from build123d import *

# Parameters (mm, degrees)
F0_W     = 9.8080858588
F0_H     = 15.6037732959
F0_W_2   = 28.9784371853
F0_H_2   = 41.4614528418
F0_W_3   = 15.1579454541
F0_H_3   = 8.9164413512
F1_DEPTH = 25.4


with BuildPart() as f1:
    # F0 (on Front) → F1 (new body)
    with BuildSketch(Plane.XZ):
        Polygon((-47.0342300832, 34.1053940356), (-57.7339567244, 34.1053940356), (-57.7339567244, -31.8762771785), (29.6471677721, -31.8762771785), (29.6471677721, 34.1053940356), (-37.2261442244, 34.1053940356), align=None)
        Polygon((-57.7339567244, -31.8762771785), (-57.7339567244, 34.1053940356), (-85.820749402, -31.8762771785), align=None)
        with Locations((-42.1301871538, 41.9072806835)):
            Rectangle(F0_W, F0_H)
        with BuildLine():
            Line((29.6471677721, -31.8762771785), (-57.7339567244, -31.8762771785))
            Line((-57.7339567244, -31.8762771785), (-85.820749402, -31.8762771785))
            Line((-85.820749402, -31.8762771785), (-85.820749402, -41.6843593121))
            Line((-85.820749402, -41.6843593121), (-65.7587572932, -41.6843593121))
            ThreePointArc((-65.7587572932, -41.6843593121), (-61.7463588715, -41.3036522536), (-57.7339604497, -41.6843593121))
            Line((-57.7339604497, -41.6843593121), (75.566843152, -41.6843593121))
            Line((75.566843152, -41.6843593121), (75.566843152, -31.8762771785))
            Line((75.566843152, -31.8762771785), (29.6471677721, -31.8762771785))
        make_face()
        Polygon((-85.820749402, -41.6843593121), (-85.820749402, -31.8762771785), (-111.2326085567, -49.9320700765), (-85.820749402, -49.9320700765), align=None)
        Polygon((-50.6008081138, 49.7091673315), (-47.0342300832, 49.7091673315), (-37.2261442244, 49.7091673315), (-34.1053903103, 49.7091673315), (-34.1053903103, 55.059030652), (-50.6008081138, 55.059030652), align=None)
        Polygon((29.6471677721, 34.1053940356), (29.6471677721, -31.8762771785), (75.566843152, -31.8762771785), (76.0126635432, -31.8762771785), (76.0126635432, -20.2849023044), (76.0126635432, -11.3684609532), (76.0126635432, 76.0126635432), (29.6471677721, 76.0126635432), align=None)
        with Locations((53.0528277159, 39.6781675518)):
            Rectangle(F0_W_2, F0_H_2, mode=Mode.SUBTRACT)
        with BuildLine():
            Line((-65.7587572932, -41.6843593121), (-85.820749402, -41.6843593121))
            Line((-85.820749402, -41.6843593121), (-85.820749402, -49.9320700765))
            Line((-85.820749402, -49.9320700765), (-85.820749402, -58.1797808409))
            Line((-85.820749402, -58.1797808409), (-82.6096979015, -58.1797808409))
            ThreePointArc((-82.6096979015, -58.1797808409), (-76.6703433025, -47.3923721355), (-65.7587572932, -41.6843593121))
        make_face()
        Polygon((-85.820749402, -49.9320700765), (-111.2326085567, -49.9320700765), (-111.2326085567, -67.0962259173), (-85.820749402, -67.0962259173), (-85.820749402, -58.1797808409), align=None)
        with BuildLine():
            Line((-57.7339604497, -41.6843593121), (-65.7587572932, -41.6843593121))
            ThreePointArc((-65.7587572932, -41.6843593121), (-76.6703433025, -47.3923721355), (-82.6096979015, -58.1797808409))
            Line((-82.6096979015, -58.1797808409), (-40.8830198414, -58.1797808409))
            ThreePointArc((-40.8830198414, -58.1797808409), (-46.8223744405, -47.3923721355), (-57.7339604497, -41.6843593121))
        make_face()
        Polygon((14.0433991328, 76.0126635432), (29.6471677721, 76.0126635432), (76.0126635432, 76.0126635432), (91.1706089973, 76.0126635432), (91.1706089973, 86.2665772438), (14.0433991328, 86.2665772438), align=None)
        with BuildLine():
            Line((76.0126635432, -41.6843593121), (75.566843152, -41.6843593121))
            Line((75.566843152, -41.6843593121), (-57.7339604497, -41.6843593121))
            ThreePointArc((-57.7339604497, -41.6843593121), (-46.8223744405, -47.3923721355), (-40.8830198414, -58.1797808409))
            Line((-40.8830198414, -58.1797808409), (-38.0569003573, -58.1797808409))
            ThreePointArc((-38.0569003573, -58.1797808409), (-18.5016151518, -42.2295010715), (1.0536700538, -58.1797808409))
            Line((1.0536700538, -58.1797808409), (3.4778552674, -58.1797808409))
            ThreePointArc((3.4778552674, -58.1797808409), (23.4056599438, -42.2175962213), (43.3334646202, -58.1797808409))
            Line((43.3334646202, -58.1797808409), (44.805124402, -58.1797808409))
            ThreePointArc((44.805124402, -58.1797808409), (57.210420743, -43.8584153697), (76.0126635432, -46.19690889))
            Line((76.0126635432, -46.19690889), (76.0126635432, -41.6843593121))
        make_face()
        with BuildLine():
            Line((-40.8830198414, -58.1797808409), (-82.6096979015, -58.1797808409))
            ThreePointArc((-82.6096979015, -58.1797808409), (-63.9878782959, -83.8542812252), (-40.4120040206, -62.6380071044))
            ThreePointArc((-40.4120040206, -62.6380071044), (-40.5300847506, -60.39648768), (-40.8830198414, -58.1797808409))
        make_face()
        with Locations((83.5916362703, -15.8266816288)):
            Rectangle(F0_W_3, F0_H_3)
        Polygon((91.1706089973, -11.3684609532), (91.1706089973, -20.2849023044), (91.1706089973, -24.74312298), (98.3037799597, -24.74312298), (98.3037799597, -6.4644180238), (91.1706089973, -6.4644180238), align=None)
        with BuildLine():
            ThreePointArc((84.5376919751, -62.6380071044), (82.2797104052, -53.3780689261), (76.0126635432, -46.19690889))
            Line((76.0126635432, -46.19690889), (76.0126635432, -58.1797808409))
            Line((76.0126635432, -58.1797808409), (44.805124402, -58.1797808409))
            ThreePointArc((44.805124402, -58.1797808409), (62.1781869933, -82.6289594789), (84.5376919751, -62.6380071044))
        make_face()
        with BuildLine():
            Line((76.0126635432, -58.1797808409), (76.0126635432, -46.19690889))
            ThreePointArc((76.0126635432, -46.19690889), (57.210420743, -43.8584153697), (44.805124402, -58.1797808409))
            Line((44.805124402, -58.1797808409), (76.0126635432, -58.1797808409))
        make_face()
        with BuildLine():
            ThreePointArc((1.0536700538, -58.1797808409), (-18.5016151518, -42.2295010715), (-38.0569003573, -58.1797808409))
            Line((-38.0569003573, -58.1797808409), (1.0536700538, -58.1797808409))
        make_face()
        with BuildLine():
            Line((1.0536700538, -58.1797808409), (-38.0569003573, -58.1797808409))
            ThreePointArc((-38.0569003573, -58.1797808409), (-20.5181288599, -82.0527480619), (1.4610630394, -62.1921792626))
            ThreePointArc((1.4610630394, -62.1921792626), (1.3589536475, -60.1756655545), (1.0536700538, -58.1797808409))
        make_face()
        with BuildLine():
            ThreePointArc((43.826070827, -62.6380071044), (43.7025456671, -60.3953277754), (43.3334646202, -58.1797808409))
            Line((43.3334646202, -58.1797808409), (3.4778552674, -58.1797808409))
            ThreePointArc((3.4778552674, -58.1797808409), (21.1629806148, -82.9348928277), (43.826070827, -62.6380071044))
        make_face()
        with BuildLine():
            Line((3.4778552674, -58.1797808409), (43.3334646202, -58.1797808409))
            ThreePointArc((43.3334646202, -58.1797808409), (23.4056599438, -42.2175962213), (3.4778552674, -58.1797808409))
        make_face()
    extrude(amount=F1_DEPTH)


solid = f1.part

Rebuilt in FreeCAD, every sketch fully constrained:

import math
import FreeCAD as App
import Part
import Sketcher
Q = App.Units.Quantity


def add_polygon(sketch, points):
    """Adds a closed chain of lines whose ends are joined by coincident constraints."""
    first, n = sketch.GeometryCount, len(points)
    for a, b in zip(points, points[1:] + points[:1]):
        sketch.addGeometry(Part.LineSegment(App.Vector(*a, 0), App.Vector(*b, 0)), False)
    for i in range(n):
        sketch.addConstraint(Sketcher.Constraint("Coincident", first + i, 2, first + (i + 1) % n, 1))

doc = App.newDocument("Part")
params = doc.addObject("Spreadsheet::Sheet", "Params")
for row, (alias, value) in enumerate([
    ("pad1_length", "1 in"),
], start=1):
    params.set(f"A{row}", alias)
    params.set(f"B{row}", "=" + value)
    params.setAlias(f"B{row}", alias)

body = doc.addObject("PartDesign::Body", "Body")

# Sketch on XZ plane
sketch1 = doc.addObject("Sketcher::SketchObject", "Sketch")
body.addObject(sketch1)
sketch1.AttachmentSupport = (doc.XZ_Plane, [""])
sketch1.MapMode = "FlatFace"
sketch1.addGeometry(Part.LineSegment(App.Vector(-85.82, -58.18, 0), App.Vector(-82.61, -58.18, 0)), False)  # 0
sketch1.addGeometry(Part.ArcOfCircle(Part.Circle(App.Vector(-61.75, -62.64, 0), App.Vector(0, 0, 1), 21.33), math.radians(168), math.radians(360)), False)  # 1
sketch1.addGeometry(Part.ArcOfCircle(Part.Circle(App.Vector(-61.75, -62.64, 0), App.Vector(0, 0, 1), 21.33), math.radians(0), math.radians(12.06)), False)  # 2
sketch1.addGeometry(Part.LineSegment(App.Vector(-40.88, -58.18, 0), App.Vector(-38.06, -58.18, 0)), False)  # 3
sketch1.addGeometry(Part.ArcOfCircle(Part.Circle(App.Vector(-18.5, -62.19, 0), App.Vector(0, 0, 1), 19.96), math.radians(168), math.radians(360)), False)  # 4
sketch1.addGeometry(Part.ArcOfCircle(Part.Circle(App.Vector(-18.5, -62.19, 0), App.Vector(0, 0, 1), 19.96), math.radians(0), math.radians(11.6)), False)  # 5
sketch1.addGeometry(Part.LineSegment(App.Vector(1.05, -58.18, 0), App.Vector(3.48, -58.18, 0)), False)  # 6
sketch1.addGeometry(Part.ArcOfCircle(Part.Circle(App.Vector(23.41, -62.64, 0), App.Vector(0, 0, 1), 20.42), math.radians(167), math.radians(360)), False)  # 7
sketch1.addGeometry(Part.ArcOfCircle(Part.Circle(App.Vector(23.41, -62.64, 0), App.Vector(0, 0, 1), 20.42), math.radians(0), math.radians(12.61)), False)  # 8
sketch1.addGeometry(Part.LineSegment(App.Vector(43.33, -58.18, 0), App.Vector(44.81, -58.18, 0)), False)  # 9
sketch1.addGeometry(Part.ArcOfCircle(Part.Circle(App.Vector(64.42, -62.64, 0), App.Vector(0, 0, 1), 20.12), math.radians(167), math.radians(360)), False)  # 10
sketch1.addGeometry(Part.ArcOfCircle(Part.Circle(App.Vector(64.42, -62.64, 0), App.Vector(0, 0, 1), 20.12), math.radians(0), math.radians(55)), False)  # 11
sketch1.addGeometry(Part.LineSegment(App.Vector(76.01, -46.2, 0), App.Vector(76.01, -41.68, 0)), False)  # 12
sketch1.addGeometry(Part.LineSegment(App.Vector(76.01, -41.68, 0), App.Vector(75.57, -41.68, 0)), False)  # 13
sketch1.addGeometry(Part.LineSegment(App.Vector(75.57, -41.68, 0), App.Vector(75.57, -31.88, 0)), False)  # 14
sketch1.addGeometry(Part.LineSegment(App.Vector(75.57, -31.88, 0), App.Vector(76.01, -31.88, 0)), False)  # 15
sketch1.addGeometry(Part.LineSegment(App.Vector(76.01, -31.88, 0), App.Vector(76.01, -20.28, 0)), False)  # 16
sketch1.addGeometry(Part.LineSegment(App.Vector(76.01, -20.28, 0), App.Vector(91.17, -20.28, 0)), False)  # 17
sketch1.addGeometry(Part.LineSegment(App.Vector(91.17, -20.28, 0), App.Vector(91.17, -24.74, 0)), False)  # 18
sketch1.addGeometry(Part.LineSegment(App.Vector(91.17, -24.74, 0), App.Vector(98.3, -24.74, 0)), False)  # 19
sketch1.addGeometry(Part.LineSegment(App.Vector(98.3, -24.74, 0), App.Vector(98.3, -6.46, 0)), False)  # 20
sketch1.addGeometry(Part.LineSegment(App.Vector(98.3, -6.46, 0), App.Vector(91.17, -6.46, 0)), False)  # 21
sketch1.addGeometry(Part.LineSegment(App.Vector(91.17, -6.46, 0), App.Vector(91.17, -11.37, 0)), False)  # 22
sketch1.addGeometry(Part.LineSegment(App.Vector(91.17, -11.37, 0), App.Vector(76.01, -11.37, 0)), False)  # 23
sketch1.addGeometry(Part.LineSegment(App.Vector(76.01, -11.37, 0), App.Vector(76.01, 76.01, 0)), False)  # 24
sketch1.addGeometry(Part.LineSegment(App.Vector(76.01, 76.01, 0), App.Vector(91.17, 76.01, 0)), False)  # 25
sketch1.addGeometry(Part.LineSegment(App.Vector(91.17, 76.01, 0), App.Vector(91.17, 86.27, 0)), False)  # 26
sketch1.addGeometry(Part.LineSegment(App.Vector(91.17, 86.27, 0), App.Vector(14.04, 86.27, 0)), False)  # 27
sketch1.addGeometry(Part.LineSegment(App.Vector(14.04, 86.27, 0), App.Vector(14.04, 76.01, 0)), False)  # 28
sketch1.addGeometry(Part.LineSegment(App.Vector(14.04, 76.01, 0), App.Vector(29.65, 76.01, 0)), False)  # 29
sketch1.addGeometry(Part.LineSegment(App.Vector(29.65, 76.01, 0), App.Vector(29.65, 34.11, 0)), False)  # 30
sketch1.addGeometry(Part.LineSegment(App.Vector(29.65, 34.11, 0), App.Vector(-37.23, 34.11, 0)), False)  # 31
sketch1.addGeometry(Part.LineSegment(App.Vector(-37.23, 34.11, 0), App.Vector(-37.23, 49.71, 0)), False)  # 32
sketch1.addGeometry(Part.LineSegment(App.Vector(-37.23, 49.71, 0), App.Vector(-34.11, 49.71, 0)), False)  # 33
sketch1.addGeometry(Part.LineSegment(App.Vector(-34.11, 49.71, 0), App.Vector(-34.11, 55.06, 0)), False)  # 34
sketch1.addGeometry(Part.LineSegment(App.Vector(-34.11, 55.06, 0), App.Vector(-50.6, 55.06, 0)), False)  # 35
sketch1.addGeometry(Part.LineSegment(App.Vector(-50.6, 55.06, 0), App.Vector(-50.6, 49.71, 0)), False)  # 36
sketch1.addGeometry(Part.LineSegment(App.Vector(-50.6, 49.71, 0), App.Vector(-47.03, 49.71, 0)), False)  # 37
sketch1.addGeometry(Part.LineSegment(App.Vector(-47.03, 49.71, 0), App.Vector(-47.03, 34.11, 0)), False)  # 38
sketch1.addGeometry(Part.LineSegment(App.Vector(-47.03, 34.11, 0), App.Vector(-57.73, 34.11, 0)), False)  # 39
sketch1.addGeometry(Part.LineSegment(App.Vector(-57.73, 34.11, 0), App.Vector(-85.82, -31.88, 0)), False)  # 40
sketch1.addGeometry(Part.LineSegment(App.Vector(-85.82, -31.88, 0), App.Vector(-111.23, -49.93, 0)), False)  # 41
sketch1.addGeometry(Part.LineSegment(App.Vector(-111.23, -49.93, 0), App.Vector(-111.23, -67.1, 0)), False)  # 42
sketch1.addGeometry(Part.LineSegment(App.Vector(-111.23, -67.1, 0), App.Vector(-85.82, -67.1, 0)), False)  # 43
sketch1.addGeometry(Part.LineSegment(App.Vector(-85.82, -67.1, 0), App.Vector(-85.82, -58.18, 0)), False)  # 44
sketch1.addGeometry(Part.ArcOfCircle(Part.Circle(App.Vector(-61.75, -62.64, 0), App.Vector(0, 0, 1), 21.33), math.radians(79), math.radians(101)), False)  # 45
sketch1.addGeometry(Part.LineSegment(App.Vector(-57.73, -41.68, 0), App.Vector(-65.76, -41.68, 0)), False)  # 46
add_polygon(sketch1, [(67.54, 18.95), (38.56, 18.95), (38.56, 60.41), (67.54, 60.41)])  # lines 47-50
sketch1.addConstraint(Sketcher.Constraint("Coincident", 0, 2, 1, 1))
sketch1.addConstraint(Sketcher.Constraint("Tangent", 1, 2, 2, 1))
sketch1.addConstraint(Sketcher.Constraint("Coincident", 2, 2, 3, 1))
sketch1.addConstraint(Sketcher.Constraint("Coincident", 3, 2, 4, 1))
sketch1.addConstraint(Sketcher.Constraint("Tangent", 4, 2, 5, 1))
sketch1.addConstraint(Sketcher.Constraint("Coincident", 5, 2, 6, 1))
sketch1.addConstraint(Sketcher.Constraint("Coincident", 6, 2, 7, 1))
sketch1.addConstraint(Sketcher.Constraint("Tangent", 7, 2, 8, 1))
sketch1.addConstraint(Sketcher.Constraint("Coincident", 8, 2, 9, 1))
sketch1.addConstraint(Sketcher.Constraint("Coincident", 9, 2, 10, 1))
sketch1.addConstraint(Sketcher.Constraint("Tangent", 10, 2, 11, 1))
sketch1.addConstraint(Sketcher.Constraint("Coincident", 11, 2, 12, 1))
sketch1.addConstraint(Sketcher.Constraint("Coincident", 12, 2, 13, 1))
sketch1.addConstraint(Sketcher.Constraint("Coincident", 13, 2, 14, 1))
sketch1.addConstraint(Sketcher.Constraint("Coincident", 14, 2, 15, 1))
sketch1.addConstraint(Sketcher.Constraint("Coincident", 15, 2, 16, 1))
sketch1.addConstraint(Sketcher.Constraint("Coincident", 16, 2, 17, 1))
sketch1.addConstraint(Sketcher.Constraint("Coincident", 17, 2, 18, 1))
sketch1.addConstraint(Sketcher.Constraint("Coincident", 18, 2, 19, 1))
sketch1.addConstraint(Sketcher.Constraint("Coincident", 19, 2, 20, 1))
sketch1.addConstraint(Sketcher.Constraint("Coincident", 20, 2, 21, 1))
sketch1.addConstraint(Sketcher.Constraint("Coincident", 21, 2, 22, 1))
sketch1.addConstraint(Sketcher.Constraint("Coincident", 22, 2, 23, 1))
sketch1.addConstraint(Sketcher.Constraint("Coincident", 23, 2, 24, 1))
sketch1.addConstraint(Sketcher.Constraint("Coincident", 24, 2, 25, 1))
sketch1.addConstraint(Sketcher.Constraint("Coincident", 25, 2, 26, 1))
sketch1.addConstraint(Sketcher.Constraint("Coincident", 26, 2, 27, 1))
sketch1.addConstraint(Sketcher.Constraint("Coincident", 27, 2, 28, 1))
sketch1.addConstraint(Sketcher.Constraint("Coincident", 28, 2, 29, 1))
sketch1.addConstraint(Sketcher.Constraint("Coincident", 29, 2, 30, 1))
sketch1.addConstraint(Sketcher.Constraint("Coincident", 30, 2, 31, 1))
sketch1.addConstraint(Sketcher.Constraint("Coincident", 31, 2, 32, 1))
sketch1.addConstraint(Sketcher.Constraint("Coincident", 32, 2, 33, 1))
sketch1.addConstraint(Sketcher.Constraint("Coincident", 33, 2, 34, 1))
sketch1.addConstraint(Sketcher.Constraint("Coincident", 34, 2, 35, 1))
sketch1.addConstraint(Sketcher.Constraint("Coincident", 35, 2, 36, 1))
sketch1.addConstraint(Sketcher.Constraint("Coincident", 36, 2, 37, 1))
sketch1.addConstraint(Sketcher.Constraint("Coincident", 37, 2, 38, 1))
sketch1.addConstraint(Sketcher.Constraint("Coincident", 38, 2, 39, 1))
sketch1.addConstraint(Sketcher.Constraint("Coincident", 39, 2, 40, 1))
sketch1.addConstraint(Sketcher.Constraint("Coincident", 40, 2, 41, 1))
sketch1.addConstraint(Sketcher.Constraint("Coincident", 41, 2, 42, 1))
sketch1.addConstraint(Sketcher.Constraint("Coincident", 42, 2, 43, 1))
sketch1.addConstraint(Sketcher.Constraint("Coincident", 43, 2, 44, 1))
sketch1.addConstraint(Sketcher.Constraint("Coincident", 44, 2, 0, 1))
sketch1.addConstraint(Sketcher.Constraint("Coincident", 45, 1, 46, 1))
sketch1.addConstraint(Sketcher.Constraint("Coincident", 46, 2, 45, 2))
sketch1.addConstraint(Sketcher.Constraint("Horizontal", 0))
sketch1.addConstraint(Sketcher.Constraint("Horizontal", 3))
sketch1.addConstraint(Sketcher.Constraint("Horizontal", 6))
sketch1.addConstraint(Sketcher.Constraint("Horizontal", 9))
sketch1.addConstraint(Sketcher.Constraint("Vertical", 12))
sketch1.addConstraint(Sketcher.Constraint("Horizontal", 13))
sketch1.addConstraint(Sketcher.Constraint("Vertical", 14))
sketch1.addConstraint(Sketcher.Constraint("Horizontal", 15))
sketch1.addConstraint(Sketcher.Constraint("Vertical", 16))
sketch1.addConstraint(Sketcher.Constraint("Horizontal", 17))
sketch1.addConstraint(Sketcher.Constraint("Vertical", 18))
sketch1.addConstraint(Sketcher.Constraint("Horizontal", 19))
sketch1.addConstraint(Sketcher.Constraint("Vertical", 20))
sketch1.addConstraint(Sketcher.Constraint("Horizontal", 21))
sketch1.addConstraint(Sketcher.Constraint("Vertical", 22))
sketch1.addConstraint(Sketcher.Constraint("Horizontal", 23))
sketch1.addConstraint(Sketcher.Constraint("Vertical", 24))
sketch1.addConstraint(Sketcher.Constraint("Horizontal", 25))
sketch1.addConstraint(Sketcher.Constraint("Vertical", 26))
sketch1.addConstraint(Sketcher.Constraint("Horizontal", 27))
sketch1.addConstraint(Sketcher.Constraint("Vertical", 28))
sketch1.addConstraint(Sketcher.Constraint("Horizontal", 29))
sketch1.addConstraint(Sketcher.Constraint("Vertical", 30))
sketch1.addConstraint(Sketcher.Constraint("Horizontal", 31))
sketch1.addConstraint(Sketcher.Constraint("Vertical", 32))
sketch1.addConstraint(Sketcher.Constraint("Horizontal", 33))
sketch1.addConstraint(Sketcher.Constraint("Vertical", 34))
sketch1.addConstraint(Sketcher.Constraint("Horizontal", 35))
sketch1.addConstraint(Sketcher.Constraint("Vertical", 36))
sketch1.addConstraint(Sketcher.Constraint("Horizontal", 37))
sketch1.addConstraint(Sketcher.Constraint("Vertical", 38))
sketch1.addConstraint(Sketcher.Constraint("Horizontal", 39))
sketch1.addConstraint(Sketcher.Constraint("Vertical", 42))
sketch1.addConstraint(Sketcher.Constraint("Horizontal", 43))
sketch1.addConstraint(Sketcher.Constraint("Vertical", 44))
sketch1.addConstraint(Sketcher.Constraint("Horizontal", 46))
sketch1.addConstraint(Sketcher.Constraint("Horizontal", 47))
sketch1.addConstraint(Sketcher.Constraint("Vertical", 48))
sketch1.addConstraint(Sketcher.Constraint("Horizontal", 49))
sketch1.addConstraint(Sketcher.Constraint("Vertical", 50))
sketch1.addConstraint(Sketcher.Constraint("Coincident", 45, 3, 1, 3))
sketch1.addConstraint(Sketcher.Constraint("Equal", 1, 2))
sketch1.addConstraint(Sketcher.Constraint("Equal", 4, 5))
sketch1.addConstraint(Sketcher.Constraint("Equal", 7, 8))
sketch1.addConstraint(Sketcher.Constraint("Equal", 10, 11))
sketch1.addConstraint(Sketcher.Constraint("Equal", 2, 45))
sketch1.addConstraint(Sketcher.Constraint("Horizontal", 2, 3, 7, 3))
sketch1.addConstraint(Sketcher.Constraint("Horizontal", 8, 3, 10, 3))
sketch1.addConstraint(Sketcher.Constraint("Horizontal", 45, 3, 1, 2))
sketch1.addConstraint(Sketcher.Constraint("Horizontal", 0, 2, 2, 2))
sketch1.addConstraint(Sketcher.Constraint("Horizontal", 5, 3, 4, 2))
sketch1.addConstraint(Sketcher.Constraint("Horizontal", 3, 2, 5, 2))
sketch1.addConstraint(Sketcher.Constraint("Horizontal", 1, 2, 7, 2))
sketch1.addConstraint(Sketcher.Constraint("Horizontal", 6, 2, 8, 2))
sketch1.addConstraint(Sketcher.Constraint("Horizontal", 7, 2, 10, 2))
sketch1.addConstraint(Sketcher.Constraint("Horizontal", 25, 2, 28, 2))
sketch1.addConstraint(Sketcher.Constraint("Horizontal", 33, 2, 36, 2))
sketch1.addConstraint(Sketcher.Constraint("Horizontal", 31, 2, 38, 2))
sketch1.addConstraint(Sketcher.Constraint("Horizontal", 15, 2, 40, 2))
sketch1.addConstraint(Sketcher.Constraint("Horizontal", 13, 2, 45, 1))
sketch1.addConstraint(Sketcher.Constraint("Vertical", 12, 2, 15, 2))
sketch1.addConstraint(Sketcher.Constraint("Vertical", 18, 2, 21, 2))
sketch1.addConstraint(Sketcher.Constraint("Vertical", 16, 2, 23, 2))
sketch1.addConstraint(Sketcher.Constraint("Vertical", 22, 2, 25, 2))
sketch1.addConstraint(Sketcher.Constraint("Vertical", 40, 2, 43, 2))
sketch1.addConstraint(Sketcher.Constraint("Radius", 4, Q("19.962678 mm")))
sketch1.addConstraint(Sketcher.Constraint("Radius", 7, Q("20.420411 mm")))
sketch1.addConstraint(Sketcher.Constraint("Radius", 1, Q("21.334355 mm")))
sketch1.addConstraint(Sketcher.Constraint("Radius", 10, Q("20.116403 mm")))
sketch1.addConstraint(Sketcher.Constraint("DistanceX", 0, 1, 0, 2, Q("3.211052 mm")))
sketch1.addConstraint(Sketcher.Constraint("DistanceX", 3, 1, 3, 2, Q("2.826119 mm")))
sketch1.addConstraint(Sketcher.Constraint("DistanceX", 9, 1, 9, 2, Q("1.47166 mm")))
sketch1.addConstraint(Sketcher.Constraint("DistanceX", 13, 2, 13, 1, Q("0.44582 mm")))
sketch1.addConstraint(Sketcher.Constraint("DistanceX", 19, 1, 19, 2, Q("7.133171 mm")))
sketch1.addConstraint(Sketcher.Constraint("DistanceX", 27, 2, 27, 1, Q("77.12721 mm")))
sketch1.addConstraint(Sketcher.Constraint("DistanceX", 29, 1, 29, 2, Q("15.603769 mm")))
sketch1.addConstraint(Sketcher.Constraint("DistanceX", 31, 2, 31, 1, Q("66.873312 mm")))
sketch1.addConstraint(Sketcher.Constraint("DistanceX", 37, 1, 37, 2, Q("3.566578 mm")))
sketch1.addConstraint(Sketcher.Constraint("DistanceX", 43, 1, 43, 2, Q("25.411859 mm")))
sketch1.addConstraint(Sketcher.Constraint("DistanceY", 12, 1, 12, 2, Q("4.51255 mm")))
sketch1.addConstraint(Sketcher.Constraint("DistanceY", 18, 2, 18, 1, Q("4.458221 mm")))
sketch1.addConstraint(Sketcher.Constraint("DistanceY", 30, 2, 30, 1, Q("41.90727 mm")))
sketch1.addConstraint(Sketcher.Constraint("DistanceX", 3, 2, -1, 1, Q("38.0569 mm")))
sketch1.addConstraint(Sketcher.Constraint("DistanceX", -1, 1, 27, 2, Q("14.043399 mm")))
sketch1.addConstraint(Sketcher.Constraint("DistanceY", 4, 3, 0, 2, Q("4.012398 mm")))
sketch1.addConstraint(Sketcher.Constraint("DistanceY", 10, 2, 11, 2, Q("16.441098 mm")))
sketch1.addConstraint(Sketcher.Constraint("DistanceX", 8, 2, 11, 2, Q("32.679199 mm")))
sketch1.addConstraint(Sketcher.Constraint("DistanceX", 47, 2, 21, 2, Q("52.607 mm")))
sketch1.addConstraint(Sketcher.Constraint("DistanceY", 30, 2, 48, 2, Q("26.3035 mm")))
sketch1.addConstraint(Sketcher.Constraint("Distance", 40, Q("71.71087 mm")))
sketch1.addConstraint(Sketcher.Constraint("DistanceX", 6, 1, 6, 2, Q("2.424185 mm")))
sketch1.addConstraint(Sketcher.Constraint("DistanceX", 33, 1, 33, 2, Q("3.120754 mm")))
sketch1.addConstraint(Sketcher.Constraint("DistanceX", 35, 2, 35, 1, Q("16.495418 mm")))
sketch1.addConstraint(Sketcher.Constraint("DistanceX", 39, 2, 39, 1, Q("10.699727 mm")))
sketch1.addConstraint(Sketcher.Constraint("DistanceX", 47, 2, 47, 1, Q("28.978437 mm")))
sketch1.addConstraint(Sketcher.Constraint("DistanceY", 14, 1, 14, 2, Q("9.808082 mm")))
sketch1.addConstraint(Sketcher.Constraint("DistanceY", 16, 1, 16, 2, Q("11.591375 mm")))
sketch1.addConstraint(Sketcher.Constraint("DistanceY", 20, 1, 20, 2, Q("18.278705 mm")))
sketch1.addConstraint(Sketcher.Constraint("DistanceY", 22, 2, 22, 1, Q("4.904043 mm")))
sketch1.addConstraint(Sketcher.Constraint("DistanceY", 26, 1, 26, 2, Q("10.253914 mm")))
sketch1.addConstraint(Sketcher.Constraint("DistanceY", 32, 1, 32, 2, Q("15.603773 mm")))
sketch1.addConstraint(Sketcher.Constraint("DistanceY", 34, 1, 34, 2, Q("5.349863 mm")))
sketch1.addConstraint(Sketcher.Constraint("DistanceY", 42, 2, 42, 1, Q("17.164156 mm")))
sketch1.addConstraint(Sketcher.Constraint("DistanceY", 44, 1, 44, 2, Q("8.916445 mm")))
sketch1.addConstraint(Sketcher.Constraint("DistanceY", 48, 1, 48, 2, Q("41.461453 mm")))
sketch1.addConstraint(Sketcher.Constraint("DistanceY", 4, 3, -1, 1, Q("62.192179 mm")))
pad1 = doc.addObject("PartDesign::Pad", "Pad")
body.addObject(pad1)
pad1.Profile = sketch1
pad1.setExpression("Length", "Params.pad1_length")

doc.recompute()
